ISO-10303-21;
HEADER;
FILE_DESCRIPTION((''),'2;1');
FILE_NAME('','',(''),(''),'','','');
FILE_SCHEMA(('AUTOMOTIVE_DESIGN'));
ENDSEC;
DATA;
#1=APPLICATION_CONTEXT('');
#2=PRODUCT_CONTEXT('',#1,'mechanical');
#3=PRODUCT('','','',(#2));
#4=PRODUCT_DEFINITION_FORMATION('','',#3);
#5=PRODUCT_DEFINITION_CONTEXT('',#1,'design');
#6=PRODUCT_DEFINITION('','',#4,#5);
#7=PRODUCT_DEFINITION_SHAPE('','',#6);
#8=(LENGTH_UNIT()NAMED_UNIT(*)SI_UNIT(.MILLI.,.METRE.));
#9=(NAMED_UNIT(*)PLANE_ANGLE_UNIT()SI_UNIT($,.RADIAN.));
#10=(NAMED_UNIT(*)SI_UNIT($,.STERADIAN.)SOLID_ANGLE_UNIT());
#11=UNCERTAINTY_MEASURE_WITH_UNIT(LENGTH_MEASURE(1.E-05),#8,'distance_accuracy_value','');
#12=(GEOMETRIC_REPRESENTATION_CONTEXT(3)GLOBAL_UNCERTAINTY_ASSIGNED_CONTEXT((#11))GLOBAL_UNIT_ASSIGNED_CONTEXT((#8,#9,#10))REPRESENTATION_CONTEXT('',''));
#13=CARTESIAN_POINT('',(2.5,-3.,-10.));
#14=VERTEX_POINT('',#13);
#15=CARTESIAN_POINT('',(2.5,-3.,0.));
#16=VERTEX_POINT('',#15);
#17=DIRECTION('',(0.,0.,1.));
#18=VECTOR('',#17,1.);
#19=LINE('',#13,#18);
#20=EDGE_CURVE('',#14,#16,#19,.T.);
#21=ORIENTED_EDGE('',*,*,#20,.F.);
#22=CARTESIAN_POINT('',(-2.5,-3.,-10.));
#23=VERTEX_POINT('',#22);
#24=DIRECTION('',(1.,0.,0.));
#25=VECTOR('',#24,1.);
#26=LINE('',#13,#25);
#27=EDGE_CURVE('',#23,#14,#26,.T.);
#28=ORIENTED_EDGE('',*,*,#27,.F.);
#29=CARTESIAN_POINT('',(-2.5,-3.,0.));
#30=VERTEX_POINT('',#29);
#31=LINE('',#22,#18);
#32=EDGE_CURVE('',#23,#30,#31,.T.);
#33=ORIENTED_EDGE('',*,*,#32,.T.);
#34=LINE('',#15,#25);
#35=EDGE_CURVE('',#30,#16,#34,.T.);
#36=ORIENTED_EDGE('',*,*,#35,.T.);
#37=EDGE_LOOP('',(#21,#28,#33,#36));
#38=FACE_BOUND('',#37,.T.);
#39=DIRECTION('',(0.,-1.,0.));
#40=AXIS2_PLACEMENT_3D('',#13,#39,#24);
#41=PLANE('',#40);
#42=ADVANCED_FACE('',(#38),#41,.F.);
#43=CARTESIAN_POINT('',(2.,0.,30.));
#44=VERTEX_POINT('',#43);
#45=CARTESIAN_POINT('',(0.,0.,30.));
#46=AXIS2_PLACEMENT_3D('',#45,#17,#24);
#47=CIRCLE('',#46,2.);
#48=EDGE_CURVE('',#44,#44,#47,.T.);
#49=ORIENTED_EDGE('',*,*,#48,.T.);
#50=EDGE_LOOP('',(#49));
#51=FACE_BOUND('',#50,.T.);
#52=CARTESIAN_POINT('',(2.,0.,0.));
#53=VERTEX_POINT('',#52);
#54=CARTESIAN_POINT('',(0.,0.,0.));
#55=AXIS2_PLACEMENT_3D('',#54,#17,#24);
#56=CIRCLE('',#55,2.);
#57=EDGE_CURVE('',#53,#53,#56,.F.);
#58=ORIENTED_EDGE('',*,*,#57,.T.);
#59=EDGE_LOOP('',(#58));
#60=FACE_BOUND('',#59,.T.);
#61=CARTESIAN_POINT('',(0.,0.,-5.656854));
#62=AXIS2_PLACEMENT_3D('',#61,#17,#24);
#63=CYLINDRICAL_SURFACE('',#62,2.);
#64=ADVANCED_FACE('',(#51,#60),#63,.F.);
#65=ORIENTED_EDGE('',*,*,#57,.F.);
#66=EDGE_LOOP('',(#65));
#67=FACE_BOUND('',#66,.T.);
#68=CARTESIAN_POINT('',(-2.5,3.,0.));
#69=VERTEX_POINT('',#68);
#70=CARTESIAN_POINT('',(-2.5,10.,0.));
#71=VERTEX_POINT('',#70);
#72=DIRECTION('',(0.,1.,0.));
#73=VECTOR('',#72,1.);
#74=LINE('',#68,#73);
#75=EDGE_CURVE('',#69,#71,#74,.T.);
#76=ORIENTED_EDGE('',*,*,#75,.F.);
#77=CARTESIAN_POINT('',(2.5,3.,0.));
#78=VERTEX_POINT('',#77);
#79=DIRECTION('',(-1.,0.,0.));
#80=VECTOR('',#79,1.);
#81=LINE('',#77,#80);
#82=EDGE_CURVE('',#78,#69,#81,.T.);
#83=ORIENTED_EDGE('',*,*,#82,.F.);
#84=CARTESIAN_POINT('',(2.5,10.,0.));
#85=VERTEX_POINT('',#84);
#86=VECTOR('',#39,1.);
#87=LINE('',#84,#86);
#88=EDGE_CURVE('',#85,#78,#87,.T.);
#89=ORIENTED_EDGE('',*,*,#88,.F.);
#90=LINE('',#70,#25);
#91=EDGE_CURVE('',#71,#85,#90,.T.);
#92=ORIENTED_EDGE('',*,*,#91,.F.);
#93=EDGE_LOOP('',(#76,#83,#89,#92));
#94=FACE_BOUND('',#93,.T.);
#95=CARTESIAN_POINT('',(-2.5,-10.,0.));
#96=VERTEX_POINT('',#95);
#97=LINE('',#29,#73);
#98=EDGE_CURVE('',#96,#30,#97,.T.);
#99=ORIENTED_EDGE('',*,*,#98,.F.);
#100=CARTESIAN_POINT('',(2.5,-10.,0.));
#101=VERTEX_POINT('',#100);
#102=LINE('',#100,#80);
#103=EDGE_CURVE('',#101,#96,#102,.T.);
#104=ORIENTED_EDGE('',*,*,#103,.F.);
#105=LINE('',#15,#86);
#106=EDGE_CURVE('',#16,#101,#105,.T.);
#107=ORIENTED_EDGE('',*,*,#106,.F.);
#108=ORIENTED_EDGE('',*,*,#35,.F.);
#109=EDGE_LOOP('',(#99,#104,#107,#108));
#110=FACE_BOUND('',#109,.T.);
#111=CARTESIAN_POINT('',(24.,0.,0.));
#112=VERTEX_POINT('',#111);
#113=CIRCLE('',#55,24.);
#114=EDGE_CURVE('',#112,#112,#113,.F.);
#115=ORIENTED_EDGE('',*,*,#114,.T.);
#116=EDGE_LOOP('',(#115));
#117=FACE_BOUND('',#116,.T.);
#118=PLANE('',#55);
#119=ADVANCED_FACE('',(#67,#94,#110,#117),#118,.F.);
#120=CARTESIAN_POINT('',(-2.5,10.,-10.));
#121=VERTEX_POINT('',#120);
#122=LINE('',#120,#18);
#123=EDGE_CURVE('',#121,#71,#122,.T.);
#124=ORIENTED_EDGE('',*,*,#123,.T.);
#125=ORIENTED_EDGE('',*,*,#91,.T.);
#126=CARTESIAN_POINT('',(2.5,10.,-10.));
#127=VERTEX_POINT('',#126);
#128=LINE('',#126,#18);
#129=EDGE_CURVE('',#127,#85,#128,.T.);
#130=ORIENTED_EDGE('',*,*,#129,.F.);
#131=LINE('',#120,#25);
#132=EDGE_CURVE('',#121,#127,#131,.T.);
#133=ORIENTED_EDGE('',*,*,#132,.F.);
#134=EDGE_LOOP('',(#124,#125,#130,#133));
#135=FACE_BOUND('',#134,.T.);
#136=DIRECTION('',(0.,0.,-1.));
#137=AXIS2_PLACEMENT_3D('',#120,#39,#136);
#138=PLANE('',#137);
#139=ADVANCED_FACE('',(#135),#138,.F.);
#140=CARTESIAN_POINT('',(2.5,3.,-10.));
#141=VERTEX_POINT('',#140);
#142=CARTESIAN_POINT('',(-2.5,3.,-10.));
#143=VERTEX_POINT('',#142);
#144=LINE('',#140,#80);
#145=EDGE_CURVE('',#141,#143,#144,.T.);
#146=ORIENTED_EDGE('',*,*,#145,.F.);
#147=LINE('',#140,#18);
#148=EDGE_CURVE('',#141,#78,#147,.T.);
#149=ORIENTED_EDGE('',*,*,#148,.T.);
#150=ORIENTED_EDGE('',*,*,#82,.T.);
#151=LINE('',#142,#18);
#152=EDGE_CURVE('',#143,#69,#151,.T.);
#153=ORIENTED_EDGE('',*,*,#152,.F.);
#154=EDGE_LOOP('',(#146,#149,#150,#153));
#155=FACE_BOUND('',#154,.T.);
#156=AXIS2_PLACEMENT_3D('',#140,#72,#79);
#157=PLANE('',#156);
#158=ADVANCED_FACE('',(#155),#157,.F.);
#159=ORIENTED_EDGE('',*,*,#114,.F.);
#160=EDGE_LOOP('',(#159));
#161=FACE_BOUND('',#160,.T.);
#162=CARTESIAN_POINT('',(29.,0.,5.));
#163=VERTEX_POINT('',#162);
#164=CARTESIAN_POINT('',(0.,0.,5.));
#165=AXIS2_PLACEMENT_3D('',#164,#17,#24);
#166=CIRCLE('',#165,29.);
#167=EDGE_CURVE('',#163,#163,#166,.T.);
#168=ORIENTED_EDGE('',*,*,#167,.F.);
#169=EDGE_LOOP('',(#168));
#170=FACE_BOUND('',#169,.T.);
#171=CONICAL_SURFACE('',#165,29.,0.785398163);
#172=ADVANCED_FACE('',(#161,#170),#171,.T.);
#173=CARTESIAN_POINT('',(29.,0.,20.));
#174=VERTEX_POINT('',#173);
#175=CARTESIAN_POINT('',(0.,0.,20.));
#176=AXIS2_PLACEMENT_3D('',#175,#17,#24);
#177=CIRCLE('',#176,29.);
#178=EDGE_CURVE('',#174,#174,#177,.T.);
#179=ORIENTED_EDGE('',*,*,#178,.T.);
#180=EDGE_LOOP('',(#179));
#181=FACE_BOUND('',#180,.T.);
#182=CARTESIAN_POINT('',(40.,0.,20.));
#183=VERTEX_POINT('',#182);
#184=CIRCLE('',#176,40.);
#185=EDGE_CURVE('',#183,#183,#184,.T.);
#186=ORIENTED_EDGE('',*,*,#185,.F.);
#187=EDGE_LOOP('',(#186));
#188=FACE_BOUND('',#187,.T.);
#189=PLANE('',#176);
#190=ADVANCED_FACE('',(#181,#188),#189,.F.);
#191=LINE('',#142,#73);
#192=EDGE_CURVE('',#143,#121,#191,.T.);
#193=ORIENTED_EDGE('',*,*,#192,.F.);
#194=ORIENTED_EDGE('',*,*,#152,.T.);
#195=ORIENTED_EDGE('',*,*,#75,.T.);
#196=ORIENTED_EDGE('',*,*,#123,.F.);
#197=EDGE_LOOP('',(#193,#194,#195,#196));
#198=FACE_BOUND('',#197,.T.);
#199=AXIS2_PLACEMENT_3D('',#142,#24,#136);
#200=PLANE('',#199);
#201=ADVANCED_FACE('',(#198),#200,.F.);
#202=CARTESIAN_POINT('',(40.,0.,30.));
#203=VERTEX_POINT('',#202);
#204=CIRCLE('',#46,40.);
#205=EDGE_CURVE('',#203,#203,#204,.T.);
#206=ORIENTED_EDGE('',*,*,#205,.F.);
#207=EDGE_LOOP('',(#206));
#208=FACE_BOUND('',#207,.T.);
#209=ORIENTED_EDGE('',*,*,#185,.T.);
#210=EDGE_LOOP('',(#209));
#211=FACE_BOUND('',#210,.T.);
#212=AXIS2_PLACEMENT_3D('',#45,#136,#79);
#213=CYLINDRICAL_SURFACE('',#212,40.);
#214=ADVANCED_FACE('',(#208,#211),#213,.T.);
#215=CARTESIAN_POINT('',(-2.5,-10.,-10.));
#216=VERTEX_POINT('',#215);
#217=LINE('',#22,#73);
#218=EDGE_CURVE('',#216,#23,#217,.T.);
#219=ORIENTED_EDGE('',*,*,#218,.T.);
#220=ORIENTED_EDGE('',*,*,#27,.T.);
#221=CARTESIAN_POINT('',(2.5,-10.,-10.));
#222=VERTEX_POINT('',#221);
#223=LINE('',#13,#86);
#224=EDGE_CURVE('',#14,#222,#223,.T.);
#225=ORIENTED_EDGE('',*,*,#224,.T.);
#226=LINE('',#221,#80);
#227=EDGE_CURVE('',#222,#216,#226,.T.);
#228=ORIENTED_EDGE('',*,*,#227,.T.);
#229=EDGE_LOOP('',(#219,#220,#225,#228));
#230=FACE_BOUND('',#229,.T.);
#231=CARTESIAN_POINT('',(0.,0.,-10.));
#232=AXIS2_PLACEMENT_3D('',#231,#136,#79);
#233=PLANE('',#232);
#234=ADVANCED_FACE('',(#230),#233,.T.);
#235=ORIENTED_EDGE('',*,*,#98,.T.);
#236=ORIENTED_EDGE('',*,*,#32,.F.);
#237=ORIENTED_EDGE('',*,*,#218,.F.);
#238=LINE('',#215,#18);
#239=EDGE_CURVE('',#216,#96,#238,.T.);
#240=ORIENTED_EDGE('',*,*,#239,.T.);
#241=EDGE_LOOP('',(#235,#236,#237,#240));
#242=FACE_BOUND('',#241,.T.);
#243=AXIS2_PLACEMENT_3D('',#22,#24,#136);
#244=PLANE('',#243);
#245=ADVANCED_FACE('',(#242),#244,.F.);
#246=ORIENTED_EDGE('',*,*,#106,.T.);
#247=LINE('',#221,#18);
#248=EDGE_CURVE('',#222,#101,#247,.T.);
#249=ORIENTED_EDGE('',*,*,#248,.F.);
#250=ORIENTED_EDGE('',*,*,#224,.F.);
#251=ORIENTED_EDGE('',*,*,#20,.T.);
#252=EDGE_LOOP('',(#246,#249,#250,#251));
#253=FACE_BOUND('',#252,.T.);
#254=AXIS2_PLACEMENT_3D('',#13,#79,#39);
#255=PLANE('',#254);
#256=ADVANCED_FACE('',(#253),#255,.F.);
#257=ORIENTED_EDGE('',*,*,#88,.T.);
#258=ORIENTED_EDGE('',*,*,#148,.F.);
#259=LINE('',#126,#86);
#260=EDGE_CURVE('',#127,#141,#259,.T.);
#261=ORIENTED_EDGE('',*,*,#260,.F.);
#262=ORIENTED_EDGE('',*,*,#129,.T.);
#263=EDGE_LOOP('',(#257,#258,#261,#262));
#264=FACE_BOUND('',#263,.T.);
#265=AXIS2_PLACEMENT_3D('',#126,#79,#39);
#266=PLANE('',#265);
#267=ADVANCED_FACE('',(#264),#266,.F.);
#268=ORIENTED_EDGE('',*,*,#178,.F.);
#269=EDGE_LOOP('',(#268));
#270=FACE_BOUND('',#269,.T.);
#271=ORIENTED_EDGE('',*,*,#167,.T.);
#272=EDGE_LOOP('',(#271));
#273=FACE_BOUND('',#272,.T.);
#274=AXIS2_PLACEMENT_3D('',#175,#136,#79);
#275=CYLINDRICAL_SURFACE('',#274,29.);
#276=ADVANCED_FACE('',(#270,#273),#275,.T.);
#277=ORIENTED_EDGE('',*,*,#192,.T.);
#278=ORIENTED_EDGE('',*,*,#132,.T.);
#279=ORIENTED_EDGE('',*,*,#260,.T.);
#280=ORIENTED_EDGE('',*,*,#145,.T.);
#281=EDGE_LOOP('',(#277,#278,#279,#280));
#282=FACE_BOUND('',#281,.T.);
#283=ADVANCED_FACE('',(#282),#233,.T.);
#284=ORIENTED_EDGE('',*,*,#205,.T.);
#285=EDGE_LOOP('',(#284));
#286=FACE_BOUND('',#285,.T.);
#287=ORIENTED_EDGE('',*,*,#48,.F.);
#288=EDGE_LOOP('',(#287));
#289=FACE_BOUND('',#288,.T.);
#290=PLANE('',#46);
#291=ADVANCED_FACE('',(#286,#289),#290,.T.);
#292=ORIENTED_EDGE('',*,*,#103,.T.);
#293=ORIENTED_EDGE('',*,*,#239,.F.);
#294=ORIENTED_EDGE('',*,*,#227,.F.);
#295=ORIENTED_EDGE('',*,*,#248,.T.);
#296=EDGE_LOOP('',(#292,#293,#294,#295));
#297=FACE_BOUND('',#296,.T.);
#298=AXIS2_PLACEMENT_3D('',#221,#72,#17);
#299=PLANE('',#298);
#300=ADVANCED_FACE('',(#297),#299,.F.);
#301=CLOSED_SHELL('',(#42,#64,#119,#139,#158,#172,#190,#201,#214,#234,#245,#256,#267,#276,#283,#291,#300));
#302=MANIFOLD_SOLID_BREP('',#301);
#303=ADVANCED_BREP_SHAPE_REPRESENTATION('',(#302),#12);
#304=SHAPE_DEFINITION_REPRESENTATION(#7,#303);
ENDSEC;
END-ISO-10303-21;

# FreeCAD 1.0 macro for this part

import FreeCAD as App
import Part
import Sketcher

V = App.Vector
Q = App.Units.Quantity


def edges_at(feature, points):
    """Names of the edges that pass closest to the given points."""
    edges = feature.Shape.Edges
    near = lambda p: min(range(len(edges)), key=lambda i: edges[i].distToShape(Part.Vertex(*p))[0])
    return sorted({f"Edge{near(p) + 1}" for p in points})


def add_polygon(sketch, points):
    """Adds a closed chain of lines whose ends are joined by coincident constraints."""
    first, n = sketch.GeometryCount, len(points)
    for a, b in zip(points, points[1:] + points[:1]):
        sketch.addGeometry(Part.LineSegment(App.Vector(*a, 0), App.Vector(*b, 0)), False)
    for i in range(n):
        sketch.addConstraint(Sketcher.Constraint("Coincident", first + i, 2, first + (i + 1) % n, 1))

doc = App.newDocument("Part")
body = doc.addObject("PartDesign::Body", "Body")

# Sketch on XY plane
sketch1 = doc.addObject("Sketcher::SketchObject", "Sketch")
body.addObject(sketch1)
sketch1.AttachmentSupport = (doc.XY_Plane, [""])
sketch1.MapMode = "FlatFace"
sketch1.addGeometry(Part.Circle(V(0, 0, 0), V(0, 0, 1), 29), False)
sketch1.addConstraint(Sketcher.Constraint("Coincident", 0, 3, -1, 1))
sketch1.addConstraint(Sketcher.Constraint("Diameter", 0, Q("58 mm")))
pad1 = doc.addObject("PartDesign::Pad", "Pad")
body.addObject(pad1)
pad1.Profile = sketch1
pad1.Length = 20

# Sketch on XY plane
sketch2 = doc.addObject("Sketcher::SketchObject", "Sketch001")
body.addObject(sketch2)
sketch2.AttachmentSupport = (doc.XY_Plane, [""])
sketch2.MapMode = "FlatFace"
sketch2.AttachmentOffset = App.Placement(V(0, 0, 20), App.Rotation())
sketch2.addGeometry(Part.Circle(V(0, 0, 0), V(0, 0, 1), 40), False)
sketch2.addConstraint(Sketcher.Constraint("Coincident", 0, 3, -1, 1))
sketch2.addConstraint(Sketcher.Constraint("Diameter", 0, Q("80 mm")))
pad2 = doc.addObject("PartDesign::Pad", "Pad001")
body.addObject(pad2)
pad2.Profile = sketch2
pad2.Length = 10
doc.recompute()

chamfer = doc.addObject("PartDesign::Chamfer", "Chamfer")
body.addObject(chamfer)
chamfer.Base = (pad2, edges_at(pad2, [(-29, 0, 0)]))
chamfer.Size = 5

# Sketch on XY plane
sketch3 = doc.addObject("Sketcher::SketchObject", "Sketch002")
body.addObject(sketch3)
sketch3.AttachmentSupport = (doc.XY_Plane, [""])
sketch3.MapMode = "FlatFace"
sketch3.AttachmentOffset = App.Placement(V(0, 0, 30), App.Rotation())
sketch3.addGeometry(Part.Circle(V(0, 0, 0), V(0, 0, 1), 2), False)
sketch3.addConstraint(Sketcher.Constraint("Coincident", 0, 3, -1, 1))
sketch3.addConstraint(Sketcher.Constraint("Diameter", 0, Q("4 mm")))
pocket1 = doc.addObject("PartDesign::Pocket", "Pocket")
body.addObject(pocket1)
pocket1.Profile = sketch3
pocket1.Length = 30

# Sketch on XY plane
sketch4 = doc.addObject("Sketcher::SketchObject", "Sketch003")
body.addObject(sketch4)
sketch4.AttachmentSupport = (doc.XY_Plane, [""])
sketch4.MapMode = "FlatFace"
add_polygon(sketch4, [(2, 10), (2, 3), (-2, 3), (-2, 10)])  # lines 0-3
add_polygon(sketch4, [(2, -3), (2, -10), (-2, -10), (-2, -3)])  # lines 4-7
sketch4.addConstraint(Sketcher.Constraint("Vertical", 0))
sketch4.addConstraint(Sketcher.Constraint("Horizontal", 1))
sketch4.addConstraint(Sketcher.Constraint("Vertical", 2))
sketch4.addConstraint(Sketcher.Constraint("Horizontal", 3))
sketch4.addConstraint(Sketcher.Constraint("Vertical", 4))
sketch4.addConstraint(Sketcher.Constraint("Horizontal", 5))
sketch4.addConstraint(Sketcher.Constraint("Vertical", 6))
sketch4.addConstraint(Sketcher.Constraint("Horizontal", 7))
sketch4.addConstraint(Sketcher.Constraint("Symmetric", 2, 2, 4, 2, -1, 1))
sketch4.addConstraint(Sketcher.Constraint("Symmetric", 0, 2, 6, 2, -1, 1))
sketch4.addConstraint(Sketcher.Constraint("Vertical", 3, 2, 4, 2))
sketch4.addConstraint(Sketcher.Constraint("DistanceX", 1, 2, 1, 1, Q("5 mm")))
sketch4.addConstraint(Sketcher.Constraint("DistanceY", 0, 2, 0, 1, Q("7 mm")))
sketch4.addConstraint(Sketcher.Constraint("DistanceY", -1, 1, 0, 2, Q("3 mm")))
pad3 = doc.addObject("PartDesign::Pad", "Pad002")
body.addObject(pad3)
pad3.Profile = sketch4
pad3.Length = 10
pad3.Reversed = True

doc.recompute()
